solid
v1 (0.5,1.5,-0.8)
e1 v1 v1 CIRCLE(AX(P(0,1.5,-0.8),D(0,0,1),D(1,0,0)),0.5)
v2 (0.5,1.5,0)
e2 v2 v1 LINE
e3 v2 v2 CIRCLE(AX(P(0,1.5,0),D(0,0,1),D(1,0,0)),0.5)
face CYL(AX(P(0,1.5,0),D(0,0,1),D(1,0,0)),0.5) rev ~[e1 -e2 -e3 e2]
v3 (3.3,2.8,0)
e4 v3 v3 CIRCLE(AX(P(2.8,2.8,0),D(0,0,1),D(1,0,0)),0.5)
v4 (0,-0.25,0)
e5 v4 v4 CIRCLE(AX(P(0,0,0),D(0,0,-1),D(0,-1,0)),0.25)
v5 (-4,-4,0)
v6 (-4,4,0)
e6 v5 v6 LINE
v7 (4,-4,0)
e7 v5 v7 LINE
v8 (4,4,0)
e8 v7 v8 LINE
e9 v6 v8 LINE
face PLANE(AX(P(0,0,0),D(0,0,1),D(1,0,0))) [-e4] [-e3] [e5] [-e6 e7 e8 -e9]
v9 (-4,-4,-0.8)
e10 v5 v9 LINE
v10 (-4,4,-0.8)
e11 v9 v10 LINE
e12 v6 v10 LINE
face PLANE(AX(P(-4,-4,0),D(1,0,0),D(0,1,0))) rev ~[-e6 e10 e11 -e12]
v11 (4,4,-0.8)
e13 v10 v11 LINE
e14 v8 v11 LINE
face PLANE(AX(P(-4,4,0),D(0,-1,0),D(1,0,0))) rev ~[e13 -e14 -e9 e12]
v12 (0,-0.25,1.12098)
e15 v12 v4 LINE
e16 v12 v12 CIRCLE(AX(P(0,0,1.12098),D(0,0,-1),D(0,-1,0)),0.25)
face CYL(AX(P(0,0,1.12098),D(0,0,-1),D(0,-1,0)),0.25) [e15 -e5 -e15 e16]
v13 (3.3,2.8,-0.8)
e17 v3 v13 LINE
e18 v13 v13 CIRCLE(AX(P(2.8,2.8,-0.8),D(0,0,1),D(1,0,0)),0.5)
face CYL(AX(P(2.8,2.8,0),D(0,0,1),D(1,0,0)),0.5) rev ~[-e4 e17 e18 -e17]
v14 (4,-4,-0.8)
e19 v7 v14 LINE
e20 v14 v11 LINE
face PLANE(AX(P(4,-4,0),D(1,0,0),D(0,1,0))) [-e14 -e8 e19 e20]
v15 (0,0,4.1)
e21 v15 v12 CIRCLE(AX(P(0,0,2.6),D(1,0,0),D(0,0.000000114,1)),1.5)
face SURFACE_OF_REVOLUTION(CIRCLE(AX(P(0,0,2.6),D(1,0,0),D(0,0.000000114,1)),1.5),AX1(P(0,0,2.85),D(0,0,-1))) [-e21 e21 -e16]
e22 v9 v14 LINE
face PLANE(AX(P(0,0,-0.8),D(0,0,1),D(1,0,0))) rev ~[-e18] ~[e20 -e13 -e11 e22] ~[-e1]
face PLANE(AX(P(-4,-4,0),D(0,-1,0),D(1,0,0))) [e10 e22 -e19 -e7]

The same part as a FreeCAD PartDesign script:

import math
import FreeCAD as App
import Part
import Sketcher

V = App.Vector

doc = App.newDocument("Part")
body = doc.addObject("PartDesign::Body", "Body")

sketch1 = body.newObject("Sketcher::SketchObject", "Sketch")
sketch1.AttachmentSupport = (doc.getObject("YZ_Plane"), [""])
sketch1.MapMode = "FlatFace"
sketch1.addGeometry(Part.LineSegment(V(-0.25, 1.12, 0), V(-0.25, 0, 0)), False)
sketch1.addGeometry(Part.LineSegment(V(-0.25, 0, 0), V(0, 0, 0)), False)
sketch1.addGeometry(Part.LineSegment(V(0, 0, 0), V(0, 4.1, 0)), False)
sketch1.addGeometry(Part.ArcOfCircle(Part.Circle(V(0, 2.6, 0), V(0, 0, 1), 1.5), math.radians(90), math.radians(260)), False)
sketch1.addConstraint(Sketcher.Constraint("Coincident", 0, 2, 1, 1))
sketch1.addConstraint(Sketcher.Constraint("Coincident", 1, 2, 2, 1))
sketch1.addConstraint(Sketcher.Constraint("Coincident", 2, 2, 3, 1))
sketch1.addConstraint(Sketcher.Constraint("Coincident", 3, 2, 0, 1))
sketch1.addConstraint(Sketcher.Constraint("Vertical", 0))
sketch1.addConstraint(Sketcher.Constraint("Horizontal", 1))
sketch1.addConstraint(Sketcher.Constraint("Vertical", 2))
sketch1.addConstraint(Sketcher.Constraint("Coincident", 1, 2, -1, 1))
sketch1.addConstraint(Sketcher.Constraint("PointOnObject", 3, 3, -2))
sketch1.addConstraint(Sketcher.Constraint("Radius", 3, 1.5))
sketch1.addConstraint(Sketcher.Constraint("DistanceY", 2, 1, 2, 2, 4.1))
sketch1.addConstraint(Sketcher.Constraint("DistanceX", 1, 1, 1, 2, 0.25))
revolution = body.newObject("PartDesign::Revolution", "Revolution")
revolution.Profile = sketch1
revolution.ReferenceAxis = (sketch1, ["V_Axis"])
revolution.Angle = 360

sketch2 = body.newObject("Sketcher::SketchObject", "Sketch001")
sketch2.AttachmentSupport = (doc.getObject("XY_Plane"), [""])
sketch2.MapMode = "FlatFace"
sketch2.addGeometry(Part.LineSegment(V(-4, 4, 0), V(-4, -4, 0)), False)
sketch2.addGeometry(Part.LineSegment(V(-4, -4, 0), V(4, -4, 0)), False)
sketch2.addGeometry(Part.LineSegment(V(4, -4, 0), V(4, 4, 0)), False)
sketch2.addGeometry(Part.LineSegment(V(4, 4, 0), V(-4, 4, 0)), False)
sketch2.addGeometry(Part.Circle(V(0, 1.5, 0), V(0, 0, 1), 0.5), False)
sketch2.addGeometry(Part.Circle(V(2.8, 2.8, 0), V(0, 0, 1), 0.5), False)
sketch2.addConstraint(Sketcher.Constraint("Coincident", 0, 2, 1, 1))
sketch2.addConstraint(Sketcher.Constraint("Coincident", 1, 2, 2, 1))
sketch2.addConstraint(Sketcher.Constraint("Coincident", 2, 2, 3, 1))
sketch2.addConstraint(Sketcher.Constraint("Coincident", 3, 2, 0, 1))
sketch2.addConstraint(Sketcher.Constraint("Vertical", 0))
sketch2.addConstraint(Sketcher.Constraint("Horizontal", 1))
sketch2.addConstraint(Sketcher.Constraint("Vertical", 2))
sketch2.addConstraint(Sketcher.Constraint("Horizontal", 3))
sketch2.addConstraint(Sketcher.Constraint("Equal", 4, 5))
sketch2.addConstraint(Sketcher.Constraint("Symmetric", 0, 2, 2, 2, -1, 1))
sketch2.addConstraint(Sketcher.Constraint("PointOnObject", 4, 3, -2))
sketch2.addConstraint(Sketcher.Constraint("Equal", 3, 0))
sketch2.addConstraint(Sketcher.Constraint("Diameter", 4, 1.0))
sketch2.addConstraint(Sketcher.Constraint("DistanceX", 1, 1, 1, 2, 8.0))
sketch2.addConstraint(Sketcher.Constraint("DistanceY", -1, 1, 4, 3, 1.5))
sketch2.addConstraint(Sketcher.Constraint("DistanceX", -1, 1, 5, 3, 2.8))
sketch2.addConstraint(Sketcher.Constraint("DistanceY", -1, 1, 5, 3, 2.8))
pad1 = body.newObject("PartDesign::Pad", "Pad")
pad1.Profile = sketch2
pad1.Length = 0.8
pad1.Reversed = True

doc.recompute()
